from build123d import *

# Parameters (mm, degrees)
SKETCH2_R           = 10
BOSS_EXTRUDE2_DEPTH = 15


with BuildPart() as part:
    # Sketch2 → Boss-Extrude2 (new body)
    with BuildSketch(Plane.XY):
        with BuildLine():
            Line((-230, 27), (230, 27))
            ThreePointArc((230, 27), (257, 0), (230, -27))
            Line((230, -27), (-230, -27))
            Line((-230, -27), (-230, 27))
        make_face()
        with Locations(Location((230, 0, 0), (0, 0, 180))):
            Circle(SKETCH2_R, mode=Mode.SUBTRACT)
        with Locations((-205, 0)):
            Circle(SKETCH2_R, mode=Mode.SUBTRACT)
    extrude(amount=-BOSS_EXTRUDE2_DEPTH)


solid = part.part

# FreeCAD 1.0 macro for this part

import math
import FreeCAD as App
import Part
import Sketcher

doc = App.newDocument("Part")
params = doc.addObject("Spreadsheet::Sheet", "Params")
for row, (alias, value) in enumerate([
    ("sketch1_diameter", "20 mm"),
    ("sketch1_radius", "27 mm"),
    ("sketch1_width", "460 mm"),
    ("pad1_length", "15 mm"),
], start=1):
    params.set(f"A{row}", alias)
    params.set(f"B{row}", "=" + value)
    params.setAlias(f"B{row}", alias)

body = doc.addObject("PartDesign::Body", "Body")

# Sketch on XY plane
sketch1 = body.newObject("Sketcher::SketchObject", "Sketch")
sketch1.AttachmentSupport = (doc.getObject("XY_Plane"), [""])
sketch1.MapMode = "FlatFace"
sketch1.addGeometry(Part.LineSegment(App.Vector(230, 27, 0), App.Vector(-230, 27, 0)), False)
sketch1.addGeometry(Part.LineSegment(App.Vector(-230, 27, 0), App.Vector(-230, -27, 0)), False)
sketch1.addGeometry(Part.LineSegment(App.Vector(-230, -27, 0), App.Vector(230, -27, 0)), False)
sketch1.addGeometry(Part.ArcOfCircle(Part.Circle(App.Vector(230, 0, 0), App.Vector(0, 0, 1), 27), math.radians(-90), math.radians(90)), False)
sketch1.addGeometry(Part.Circle(App.Vector(230, 0, 0), App.Vector(0, 0, 1), 10), False)
sketch1.addGeometry(Part.Circle(App.Vector(-205, 0, 0), App.Vector(0, 0, 1), 10), False)
sketch1.addConstraint(Sketcher.Constraint("Coincident", 0, 2, 1, 1))
sketch1.addConstraint(Sketcher.Constraint("Coincident", 1, 2, 2, 1))
sketch1.addConstraint(Sketcher.Constraint("Tangent", 2, 2, 3, 1))
sketch1.addConstraint(Sketcher.Constraint("Tangent", 3, 2, 0, 1))
sketch1.addConstraint(Sketcher.Constraint("Horizontal", 0))
sketch1.addConstraint(Sketcher.Constraint("Vertical", 1))
sketch1.addConstraint(Sketcher.Constraint("Horizontal", 2))
sketch1.addConstraint(Sketcher.Constraint("Coincident", 4, 3, 3, 3))
sketch1.addConstraint(Sketcher.Constraint("Equal", 4, 5))
sketch1.addConstraint(Sketcher.Constraint("Symmetric", 0, 2, 2, 2, -1, 1))
sketch1.addConstraint(Sketcher.Constraint("PointOnObject", 5, 3, -1))
sketch1.addConstraint(Sketcher.Constraint("Diameter", 4, 20.0))
sketch1.addConstraint(Sketcher.Constraint("Radius", 3, 27.0))
sketch1.addConstraint(Sketcher.Constraint("DistanceX", 0, 2, 0, 1, 460.0))
sketch1.addConstraint(Sketcher.Constraint("DistanceX", 5, 3, -1, 1, 205.0))
sketch1.setExpression("Constraints[11]", "Params.sketch1_diameter")
sketch1.setExpression("Constraints[12]", "Params.sketch1_radius")
sketch1.setExpression("Constraints[13]", "Params.sketch1_width")
pad1 = body.newObject("PartDesign::Pad", "Pad")
pad1.Profile = sketch1
pad1.setExpression("Length", "Params.pad1_length")
pad1.Reversed = True

doc.recompute()
